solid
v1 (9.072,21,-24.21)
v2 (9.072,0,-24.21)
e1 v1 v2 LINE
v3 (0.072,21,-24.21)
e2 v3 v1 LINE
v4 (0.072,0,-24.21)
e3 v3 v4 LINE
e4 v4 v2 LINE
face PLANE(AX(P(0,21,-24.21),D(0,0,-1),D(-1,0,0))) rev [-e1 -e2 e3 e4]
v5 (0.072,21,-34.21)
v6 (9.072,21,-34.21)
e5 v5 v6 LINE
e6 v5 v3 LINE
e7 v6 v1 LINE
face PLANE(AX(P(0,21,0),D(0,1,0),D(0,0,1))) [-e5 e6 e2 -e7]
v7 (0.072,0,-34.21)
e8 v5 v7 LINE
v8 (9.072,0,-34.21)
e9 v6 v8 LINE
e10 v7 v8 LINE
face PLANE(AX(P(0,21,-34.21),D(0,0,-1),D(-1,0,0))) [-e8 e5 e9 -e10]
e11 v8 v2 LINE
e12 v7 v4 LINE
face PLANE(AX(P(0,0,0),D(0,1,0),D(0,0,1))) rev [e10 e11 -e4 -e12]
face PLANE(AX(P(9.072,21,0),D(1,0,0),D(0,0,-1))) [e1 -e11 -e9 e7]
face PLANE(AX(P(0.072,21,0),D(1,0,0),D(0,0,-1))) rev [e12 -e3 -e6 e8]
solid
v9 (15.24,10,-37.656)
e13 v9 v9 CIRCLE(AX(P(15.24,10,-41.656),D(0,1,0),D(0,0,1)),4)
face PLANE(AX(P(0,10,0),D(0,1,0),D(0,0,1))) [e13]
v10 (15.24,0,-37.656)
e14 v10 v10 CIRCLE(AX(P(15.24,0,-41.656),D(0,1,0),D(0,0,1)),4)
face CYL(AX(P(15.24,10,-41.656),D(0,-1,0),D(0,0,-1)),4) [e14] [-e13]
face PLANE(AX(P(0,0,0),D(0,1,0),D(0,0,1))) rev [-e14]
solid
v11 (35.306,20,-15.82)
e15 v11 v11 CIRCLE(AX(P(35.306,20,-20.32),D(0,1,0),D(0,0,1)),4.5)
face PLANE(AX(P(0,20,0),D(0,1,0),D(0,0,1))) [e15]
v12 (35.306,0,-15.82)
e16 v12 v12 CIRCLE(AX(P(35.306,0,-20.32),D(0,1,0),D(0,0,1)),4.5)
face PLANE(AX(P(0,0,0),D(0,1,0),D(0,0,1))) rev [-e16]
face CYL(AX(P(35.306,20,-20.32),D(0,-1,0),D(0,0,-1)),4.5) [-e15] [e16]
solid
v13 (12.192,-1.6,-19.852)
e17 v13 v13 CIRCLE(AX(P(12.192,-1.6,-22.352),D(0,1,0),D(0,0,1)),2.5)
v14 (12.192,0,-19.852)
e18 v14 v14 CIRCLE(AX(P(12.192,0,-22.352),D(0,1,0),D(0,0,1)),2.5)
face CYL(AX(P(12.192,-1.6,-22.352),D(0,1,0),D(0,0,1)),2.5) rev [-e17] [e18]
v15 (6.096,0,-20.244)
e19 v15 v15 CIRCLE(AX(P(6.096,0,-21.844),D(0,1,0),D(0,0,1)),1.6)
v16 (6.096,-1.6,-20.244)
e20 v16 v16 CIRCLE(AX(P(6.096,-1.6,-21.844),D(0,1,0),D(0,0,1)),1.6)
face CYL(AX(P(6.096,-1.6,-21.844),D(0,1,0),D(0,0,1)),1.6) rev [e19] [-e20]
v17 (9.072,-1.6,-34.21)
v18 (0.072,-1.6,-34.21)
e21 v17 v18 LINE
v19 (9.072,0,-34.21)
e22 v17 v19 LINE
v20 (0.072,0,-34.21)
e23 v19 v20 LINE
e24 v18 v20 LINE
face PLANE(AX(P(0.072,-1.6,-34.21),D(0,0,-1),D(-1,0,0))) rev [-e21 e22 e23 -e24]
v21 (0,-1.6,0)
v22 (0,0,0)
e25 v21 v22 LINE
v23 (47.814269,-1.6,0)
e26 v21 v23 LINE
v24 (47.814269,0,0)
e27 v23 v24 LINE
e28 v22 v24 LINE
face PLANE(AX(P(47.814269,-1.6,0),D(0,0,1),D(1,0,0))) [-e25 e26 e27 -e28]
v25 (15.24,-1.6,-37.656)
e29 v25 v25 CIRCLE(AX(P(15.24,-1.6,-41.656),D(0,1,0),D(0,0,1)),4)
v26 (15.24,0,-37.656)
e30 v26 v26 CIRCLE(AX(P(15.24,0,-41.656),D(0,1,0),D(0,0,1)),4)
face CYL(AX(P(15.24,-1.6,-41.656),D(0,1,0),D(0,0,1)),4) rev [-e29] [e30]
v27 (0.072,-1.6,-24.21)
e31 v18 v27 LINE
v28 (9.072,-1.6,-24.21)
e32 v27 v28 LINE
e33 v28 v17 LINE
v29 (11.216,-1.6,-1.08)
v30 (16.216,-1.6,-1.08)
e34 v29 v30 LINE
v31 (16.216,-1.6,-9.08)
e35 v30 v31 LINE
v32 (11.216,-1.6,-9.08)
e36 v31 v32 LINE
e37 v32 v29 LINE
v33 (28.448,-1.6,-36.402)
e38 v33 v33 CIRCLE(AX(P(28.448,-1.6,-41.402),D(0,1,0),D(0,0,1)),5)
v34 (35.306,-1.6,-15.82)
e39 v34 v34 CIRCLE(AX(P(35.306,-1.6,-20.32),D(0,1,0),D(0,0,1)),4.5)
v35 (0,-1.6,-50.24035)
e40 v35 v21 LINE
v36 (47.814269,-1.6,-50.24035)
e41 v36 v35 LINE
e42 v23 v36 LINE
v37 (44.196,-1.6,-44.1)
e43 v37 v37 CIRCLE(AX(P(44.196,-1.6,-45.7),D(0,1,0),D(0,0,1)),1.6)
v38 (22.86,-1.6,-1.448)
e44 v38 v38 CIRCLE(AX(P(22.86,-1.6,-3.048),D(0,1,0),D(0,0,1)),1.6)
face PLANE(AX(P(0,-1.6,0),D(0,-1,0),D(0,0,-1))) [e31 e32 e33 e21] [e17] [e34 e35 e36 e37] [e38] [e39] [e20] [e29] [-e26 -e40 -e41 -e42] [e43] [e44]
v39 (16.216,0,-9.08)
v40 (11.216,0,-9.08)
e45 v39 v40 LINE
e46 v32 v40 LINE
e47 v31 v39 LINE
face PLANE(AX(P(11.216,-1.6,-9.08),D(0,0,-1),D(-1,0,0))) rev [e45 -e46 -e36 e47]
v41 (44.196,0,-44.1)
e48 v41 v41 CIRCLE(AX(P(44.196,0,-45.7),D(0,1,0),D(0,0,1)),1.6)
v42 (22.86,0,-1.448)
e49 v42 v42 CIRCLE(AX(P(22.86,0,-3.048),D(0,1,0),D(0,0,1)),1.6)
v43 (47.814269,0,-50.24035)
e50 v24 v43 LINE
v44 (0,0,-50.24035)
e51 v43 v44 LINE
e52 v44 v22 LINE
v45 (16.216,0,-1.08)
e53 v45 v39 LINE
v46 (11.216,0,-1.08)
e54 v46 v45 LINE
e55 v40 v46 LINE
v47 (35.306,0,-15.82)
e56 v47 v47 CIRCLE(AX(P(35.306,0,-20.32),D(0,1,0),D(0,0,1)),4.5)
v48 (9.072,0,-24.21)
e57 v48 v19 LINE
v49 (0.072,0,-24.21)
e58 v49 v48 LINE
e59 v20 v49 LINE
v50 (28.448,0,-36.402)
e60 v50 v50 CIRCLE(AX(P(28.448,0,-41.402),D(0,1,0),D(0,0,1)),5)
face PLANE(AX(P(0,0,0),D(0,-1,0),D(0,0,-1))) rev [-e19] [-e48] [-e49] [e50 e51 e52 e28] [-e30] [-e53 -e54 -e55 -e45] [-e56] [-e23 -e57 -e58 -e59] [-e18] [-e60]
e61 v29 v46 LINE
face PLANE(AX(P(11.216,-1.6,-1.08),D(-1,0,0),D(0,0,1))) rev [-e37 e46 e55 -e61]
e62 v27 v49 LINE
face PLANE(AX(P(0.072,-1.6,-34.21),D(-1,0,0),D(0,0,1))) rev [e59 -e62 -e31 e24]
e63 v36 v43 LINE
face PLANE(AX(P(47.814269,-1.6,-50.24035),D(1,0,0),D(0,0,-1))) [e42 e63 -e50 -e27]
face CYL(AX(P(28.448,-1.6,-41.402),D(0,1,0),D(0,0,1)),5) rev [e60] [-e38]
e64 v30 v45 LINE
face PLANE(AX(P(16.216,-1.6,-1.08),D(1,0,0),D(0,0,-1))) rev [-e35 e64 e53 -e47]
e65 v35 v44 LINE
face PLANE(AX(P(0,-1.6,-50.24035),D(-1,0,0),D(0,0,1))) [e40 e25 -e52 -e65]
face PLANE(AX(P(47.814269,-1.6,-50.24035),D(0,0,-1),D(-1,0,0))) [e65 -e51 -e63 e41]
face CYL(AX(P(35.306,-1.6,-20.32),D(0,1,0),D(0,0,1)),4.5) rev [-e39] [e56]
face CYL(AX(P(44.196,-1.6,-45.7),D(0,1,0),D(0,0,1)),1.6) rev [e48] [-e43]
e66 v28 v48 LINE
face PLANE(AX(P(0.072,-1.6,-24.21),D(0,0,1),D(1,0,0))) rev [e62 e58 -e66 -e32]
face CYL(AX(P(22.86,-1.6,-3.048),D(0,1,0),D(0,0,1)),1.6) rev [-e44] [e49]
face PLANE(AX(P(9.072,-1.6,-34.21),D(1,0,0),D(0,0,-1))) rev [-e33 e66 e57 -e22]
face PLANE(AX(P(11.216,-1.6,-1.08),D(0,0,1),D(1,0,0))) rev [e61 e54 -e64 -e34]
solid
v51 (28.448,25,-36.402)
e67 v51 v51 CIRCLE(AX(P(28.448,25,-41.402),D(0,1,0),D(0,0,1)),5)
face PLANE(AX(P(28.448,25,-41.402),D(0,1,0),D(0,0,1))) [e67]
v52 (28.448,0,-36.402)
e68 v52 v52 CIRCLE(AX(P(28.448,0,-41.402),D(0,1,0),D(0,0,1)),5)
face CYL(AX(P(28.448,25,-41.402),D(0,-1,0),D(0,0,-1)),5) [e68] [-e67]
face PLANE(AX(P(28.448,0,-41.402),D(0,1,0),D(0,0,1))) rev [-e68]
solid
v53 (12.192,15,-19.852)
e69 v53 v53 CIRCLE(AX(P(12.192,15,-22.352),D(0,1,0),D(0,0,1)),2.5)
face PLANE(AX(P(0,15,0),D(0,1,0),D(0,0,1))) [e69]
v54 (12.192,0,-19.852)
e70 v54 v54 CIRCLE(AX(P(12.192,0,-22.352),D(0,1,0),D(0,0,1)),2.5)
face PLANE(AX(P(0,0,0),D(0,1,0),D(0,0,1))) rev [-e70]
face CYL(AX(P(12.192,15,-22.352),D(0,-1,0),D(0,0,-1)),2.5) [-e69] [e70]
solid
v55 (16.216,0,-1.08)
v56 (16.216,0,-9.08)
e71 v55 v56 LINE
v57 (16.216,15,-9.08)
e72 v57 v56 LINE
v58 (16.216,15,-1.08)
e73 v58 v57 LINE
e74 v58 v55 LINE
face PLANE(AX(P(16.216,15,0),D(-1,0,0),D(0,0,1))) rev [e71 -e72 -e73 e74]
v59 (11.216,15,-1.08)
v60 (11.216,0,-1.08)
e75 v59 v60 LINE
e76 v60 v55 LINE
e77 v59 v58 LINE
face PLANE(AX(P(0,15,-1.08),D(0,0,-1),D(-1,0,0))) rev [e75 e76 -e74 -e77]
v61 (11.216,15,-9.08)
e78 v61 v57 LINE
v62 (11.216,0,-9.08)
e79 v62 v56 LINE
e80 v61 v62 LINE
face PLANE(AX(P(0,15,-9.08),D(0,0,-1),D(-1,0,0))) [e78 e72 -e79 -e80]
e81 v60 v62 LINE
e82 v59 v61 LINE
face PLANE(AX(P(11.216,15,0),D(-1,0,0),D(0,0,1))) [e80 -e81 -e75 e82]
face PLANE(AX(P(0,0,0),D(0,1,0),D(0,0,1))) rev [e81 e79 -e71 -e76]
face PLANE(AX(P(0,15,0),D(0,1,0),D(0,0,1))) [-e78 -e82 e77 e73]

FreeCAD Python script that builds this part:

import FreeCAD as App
import Part
import Sketcher
from FreeCAD import Vector
Q = App.Units.Quantity

doc = App.newDocument("Part")
body = doc.addObject("PartDesign::Body", "Body")

# Sketch on XZ plane
sketch1 = doc.addObject("Sketcher::SketchObject", "Sketch")
body.addObject(sketch1)
sketch1.AttachmentSupport = (doc.XZ_Plane, [""])
sketch1.MapMode = "FlatFace"
sketch1.addGeometry(Part.Circle(Vector(28, -41, 0), Vector(0, 0, 1), 5), False)
sketch1.addConstraint([
    Sketcher.Constraint("Diameter", 0, Q("10 mm")),
    Sketcher.Constraint("DistanceX", -1, 1, 0, 3, Q("28.448 mm")),
    Sketcher.Constraint("DistanceY", 0, 3, -1, 1, Q("41.402 mm")),
])
pad1 = doc.addObject("PartDesign::Pad", "Pad")
body.addObject(pad1)
pad1.Profile = sketch1
pad1.Length = 25
pad1.Reversed = True
body2 = doc.addObject("PartDesign::Body", "Body001")

# Sketch on XZ plane
sketch2 = doc.addObject("Sketcher::SketchObject", "Sketch001")
body2.addObject(sketch2)
sketch2.AttachmentSupport = (doc.getObject("XZ_Plane001"), [""])
sketch2.MapMode = "FlatFace"
sketch2.addGeometry([
    Part.LineSegment(Vector(0, -34, 0), Vector(0, -24, 0)),
    Part.LineSegment(Vector(0, -24, 0), Vector(9, -24, 0)),
    Part.LineSegment(Vector(9, -24, 0), Vector(9, -34, 0)),
    Part.LineSegment(Vector(9, -34, 0), Vector(0, -34, 0)),
], False)
sketch2.addConstraint([
    Sketcher.Constraint("Coincident", 0, 2, 1, 1),
    Sketcher.Constraint("Coincident", 1, 2, 2, 1),
    Sketcher.Constraint("Coincident", 2, 2, 3, 1),
    Sketcher.Constraint("Coincident", 3, 2, 0, 1),
    Sketcher.Constraint("Vertical", 0),
    Sketcher.Constraint("Horizontal", 1),
    Sketcher.Constraint("Vertical", 2),
    Sketcher.Constraint("Horizontal", 3),
    Sketcher.Constraint("DistanceX", 1, 1, 1, 2, Q("9 mm")),
    Sketcher.Constraint("DistanceY", 0, 1, 0, 2, Q("10 mm")),
    Sketcher.Constraint("DistanceY", 0, 2, -1, 1, Q("24.21 mm")),
    Sketcher.Constraint("DistanceX", -1, 1, 0, 2, Q("0.072 mm")),
])
pad2 = doc.addObject("PartDesign::Pad", "Pad001")
body2.addObject(pad2)
pad2.Profile = sketch2
pad2.Length = 21
pad2.Reversed = True
body3 = doc.addObject("PartDesign::Body", "Body002")

# Sketch on XZ plane
sketch3 = doc.addObject("Sketcher::SketchObject", "Sketch002")
body3.addObject(sketch3)
sketch3.AttachmentSupport = (doc.getObject("XZ_Plane002"), [""])
sketch3.MapMode = "FlatFace"
sketch3.addGeometry(Part.Circle(Vector(35.3, -20.3, 0), Vector(0, 0, 1), 4.5), False)
sketch3.addConstraint([
    Sketcher.Constraint("Diameter", 0, Q("9 mm")),
    Sketcher.Constraint("DistanceY", 0, 3, -1, 1, Q("20.32 mm")),
    Sketcher.Constraint("DistanceX", -1, 1, 0, 3, Q("35.306 mm")),
])
pad3 = doc.addObject("PartDesign::Pad", "Pad002")
body3.addObject(pad3)
pad3.Profile = sketch3
pad3.Length = 20
pad3.Reversed = True
body4 = doc.addObject("PartDesign::Body", "Body003")

# Sketch on XZ plane
sketch4 = doc.addObject("Sketcher::SketchObject", "Sketch003")
body4.addObject(sketch4)
sketch4.AttachmentSupport = (doc.getObject("XZ_Plane003"), [""])
sketch4.MapMode = "FlatFace"
sketch4.addGeometry([
    Part.LineSegment(Vector(11, -9, 0), Vector(11, -1, 0)),
    Part.LineSegment(Vector(11, -1, 0), Vector(16, -1, 0)),
    Part.LineSegment(Vector(16, -1, 0), Vector(16, -9, 0)),
    Part.LineSegment(Vector(16, -9, 0), Vector(11, -9, 0)),
], False)
sketch4.addConstraint([
    Sketcher.Constraint("Coincident", 0, 2, 1, 1),
    Sketcher.Constraint("Coincident", 1, 2, 2, 1),
    Sketcher.Constraint("Coincident", 2, 2, 3, 1),
    Sketcher.Constraint("Coincident", 3, 2, 0, 1),
    Sketcher.Constraint("Vertical", 0),
    Sketcher.Constraint("Horizontal", 1),
    Sketcher.Constraint("Vertical", 2),
    Sketcher.Constraint("Horizontal", 3),
    Sketcher.Constraint("DistanceX", 1, 1, 1, 2, Q("5 mm")),
    Sketcher.Constraint("DistanceY", 0, 1, 0, 2, Q("8 mm")),
    Sketcher.Constraint("DistanceY", 0, 2, -1, 1, Q("1.08 mm")),
    Sketcher.Constraint("DistanceX", -1, 1, 0, 2, Q("11.216 mm")),
])
pad4 = doc.addObject("PartDesign::Pad", "Pad003")
body4.addObject(pad4)
pad4.Profile = sketch4
pad4.Length = 15
pad4.Reversed = True
body5 = doc.addObject("PartDesign::Body", "Body004")

# Sketch on XZ plane
sketch5 = doc.addObject("Sketcher::SketchObject", "Sketch004")
body5.addObject(sketch5)
sketch5.AttachmentSupport = (doc.getObject("XZ_Plane004"), [""])
sketch5.MapMode = "FlatFace"
sketch5.addGeometry(Part.Circle(Vector(12.2, -22.4, 0), Vector(0, 0, 1), 2.5), False)
sketch5.addConstraint([
    Sketcher.Constraint("Diameter", 0, Q("5 mm")),
    Sketcher.Constraint("DistanceX", -1, 1, 0, 3, Q("12.192 mm")),
    Sketcher.Constraint("DistanceY", 0, 3, -1, 1, Q("22.352 mm")),
])
pad5 = doc.addObject("PartDesign::Pad", "Pad004")
body5.addObject(pad5)
pad5.Profile = sketch5
pad5.Length = 15
pad5.Reversed = True
body6 = doc.addObject("PartDesign::Body", "Body005")

# Sketch on XZ plane
sketch6 = doc.addObject("Sketcher::SketchObject", "Sketch005")
body6.addObject(sketch6)
sketch6.AttachmentSupport = (doc.getObject("XZ_Plane005"), [""])
sketch6.MapMode = "FlatFace"
sketch6.addGeometry([
    Part.LineSegment(Vector(0, -50.2, 0), Vector(0, 0, 0)),  # 0
    Part.LineSegment(Vector(0, 0, 0), Vector(47.8, 0, 0)),  # 1
    Part.LineSegment(Vector(47.8, 0, 0), Vector(47.8, -50.2, 0)),  # 2
    Part.LineSegment(Vector(47.8, -50.2, 0), Vector(0, -50.2, 0)),  # 3
    Part.LineSegment(Vector(16.2, -1.1, 0), Vector(11.2, -1.1, 0)),  # 4
    Part.LineSegment(Vector(11.2, -1.1, 0), Vector(11.2, -9.1, 0)),  # 5
    Part.LineSegment(Vector(11.2, -9.1, 0), Vector(16.2, -9.1, 0)),  # 6
    Part.LineSegment(Vector(16.2, -9.1, 0), Vector(16.2, -1.1, 0)),  # 7
    Part.Circle(Vector(22.9, -3, 0), Vector(0, 0, 1), 1.6),  # 8
    Part.Circle(Vector(6.1, -21.8, 0), Vector(0, 0, 1), 1.6),  # 9
    Part.Circle(Vector(12.2, -22.4, 0), Vector(0, 0, 1), 2.5),  # 10
    Part.Circle(Vector(35.3, -20.3, 0), Vector(0, 0, 1), 4.5),  # 11
    Part.LineSegment(Vector(9.1, -24.2, 0), Vector(0.1, -24.2, 0)),  # 12
    Part.LineSegment(Vector(0.1, -24.2, 0), Vector(0.1, -34.2, 0)),  # 13
    Part.LineSegment(Vector(0.1, -34.2, 0), Vector(9.1, -34.2, 0)),  # 14
    Part.LineSegment(Vector(9.1, -34.2, 0), Vector(9.1, -24.2, 0)),  # 15
    Part.Circle(Vector(15.2, -41.7, 0), Vector(0, 0, 1), 4),  # 16
    Part.Circle(Vector(28.4, -41.4, 0), Vector(0, 0, 1), 5),  # 17
    Part.Circle(Vector(44.2, -45.7, 0), Vector(0, 0, 1), 1.6),  # 18
], False)
sketch6.addConstraint([
    Sketcher.Constraint("Coincident", 0, 2, 1, 1),
    Sketcher.Constraint("Coincident", 1, 2, 2, 1),
    Sketcher.Constraint("Coincident", 2, 2, 3, 1),
    Sketcher.Constraint("Coincident", 3, 2, 0, 1),
    Sketcher.Constraint("Coincident", 4, 2, 5, 1),
    Sketcher.Constraint("Coincident", 5, 2, 6, 1),
    Sketcher.Constraint("Coincident", 6, 2, 7, 1),
    Sketcher.Constraint("Coincident", 7, 2, 4, 1),
    Sketcher.Constraint("Coincident", 12, 2, 13, 1),
    Sketcher.Constraint("Coincident", 13, 2, 14, 1),
    Sketcher.Constraint("Coincident", 14, 2, 15, 1),
    Sketcher.Constraint("Coincident", 15, 2, 12, 1),
    Sketcher.Constraint("Vertical", 0),
    Sketcher.Constraint("Horizontal", 1),
    Sketcher.Constraint("Vertical", 2),
    Sketcher.Constraint("Horizontal", 3),
    Sketcher.Constraint("Horizontal", 4),
    Sketcher.Constraint("Vertical", 5),
    Sketcher.Constraint("Horizontal", 6),
    Sketcher.Constraint("Vertical", 7),
    Sketcher.Constraint("Horizontal", 12),
    Sketcher.Constraint("Vertical", 13),
    Sketcher.Constraint("Horizontal", 14),
    Sketcher.Constraint("Vertical", 15),
    Sketcher.Constraint("Coincident", 0, 2, -1, 1),
    Sketcher.Constraint("Equal", 8, 9),
    Sketcher.Constraint("Equal", 9, 18),
    Sketcher.Constraint("Diameter", 10, Q("5 mm")),
    Sketcher.Constraint("Diameter", 11, Q("9 mm")),
    Sketcher.Constraint("Diameter", 16, Q("8 mm")),
    Sketcher.Constraint("Diameter", 17, Q("10 mm")),
    Sketcher.Constraint("Diameter", 8, Q("3.2 mm")),
    Sketcher.Constraint("DistanceX", 4, 2, 4, 1, Q("5 mm")),
    Sketcher.Constraint("DistanceX", 12, 2, 12, 1, Q("9 mm")),
    Sketcher.Constraint("DistanceY", 5, 2, 5, 1, Q("8 mm")),
    Sketcher.Constraint("DistanceY", 13, 2, 13, 1, Q("10 mm")),
    Sketcher.Constraint("DistanceY", 18, 3, -1, 1, Q("45.7 mm")),
    Sketcher.Constraint("DistanceX", 9, 3, 18, 3, Q("38.1 mm")),
    Sketcher.Constraint("DistanceX", -1, 1, 8, 3, Q("22.86 mm")),
    Sketcher.Constraint("DistanceY", 11, 3, -1, 1, Q("20.32 mm")),
    Sketcher.Constraint("DistanceX", -1, 1, 16, 3, Q("15.24 mm")),
    Sketcher.Constraint("DistanceY", 4, 2, -1, 1, Q("1.08 mm")),
    Sketcher.Constraint("DistanceY", 12, 2, -1, 1, Q("24.21 mm")),
    Sketcher.Constraint("DistanceX", 9, 3, 11, 3, Q("29.21 mm")),
    Sketcher.Constraint("DistanceY", 17, 3, 10, 3, Q("19.05 mm")),
    Sketcher.Constraint("DistanceX", 9, 3, 4, 2, Q("5.12 mm")),
    Sketcher.Constraint("DistanceX", 12, 2, 10, 3, Q("12.12 mm")),
    Sketcher.Constraint("DistanceY", 8, 3, -1, 1, Q("3.048 mm")),
    Sketcher.Constraint("DistanceX", -1, 1, 9, 3, Q("6.096 mm")),
    Sketcher.Constraint("DistanceY", 9, 3, -1, 1, Q("21.844 mm")),
    Sketcher.Constraint("DistanceX", -1, 1, 10, 3, Q("12.192 mm")),
    Sketcher.Constraint("DistanceY", 10, 3, -1, 1, Q("22.352 mm")),
    Sketcher.Constraint("DistanceY", 16, 3, -1, 1, Q("41.656 mm")),
    Sketcher.Constraint("DistanceX", -1, 1, 17, 3, Q("28.448 mm")),
    Sketcher.Constraint("DistanceX", 1, 1, 1, 2, Q("47.814269 mm")),
    Sketcher.Constraint("DistanceY", 0, 1, 0, 2, Q("50.24035 mm")),
])
pad6 = doc.addObject("PartDesign::Pad", "Pad005")
body6.addObject(pad6)
pad6.Profile = sketch6
pad6.Length = 1.6
body7 = doc.addObject("PartDesign::Body", "Body006")

# Sketch on XZ plane
sketch7 = doc.addObject("Sketcher::SketchObject", "Sketch006")
body7.addObject(sketch7)
sketch7.AttachmentSupport = (doc.getObject("XZ_Plane006"), [""])
sketch7.MapMode = "FlatFace"
sketch7.addGeometry(Part.Circle(Vector(15.2, -41.7, 0), Vector(0, 0, 1), 4), False)
sketch7.addConstraint([
    Sketcher.Constraint("Diameter", 0, Q("8 mm")),
    Sketcher.Constraint("DistanceX", -1, 1, 0, 3, Q("15.24 mm")),
    Sketcher.Constraint("DistanceY", 0, 3, -1, 1, Q("41.656 mm")),
])
pad7 = doc.addObject("PartDesign::Pad", "Pad006")
body7.addObject(pad7)
pad7.Profile = sketch7
pad7.Length = 10
pad7.Reversed = True

doc.recompute()
